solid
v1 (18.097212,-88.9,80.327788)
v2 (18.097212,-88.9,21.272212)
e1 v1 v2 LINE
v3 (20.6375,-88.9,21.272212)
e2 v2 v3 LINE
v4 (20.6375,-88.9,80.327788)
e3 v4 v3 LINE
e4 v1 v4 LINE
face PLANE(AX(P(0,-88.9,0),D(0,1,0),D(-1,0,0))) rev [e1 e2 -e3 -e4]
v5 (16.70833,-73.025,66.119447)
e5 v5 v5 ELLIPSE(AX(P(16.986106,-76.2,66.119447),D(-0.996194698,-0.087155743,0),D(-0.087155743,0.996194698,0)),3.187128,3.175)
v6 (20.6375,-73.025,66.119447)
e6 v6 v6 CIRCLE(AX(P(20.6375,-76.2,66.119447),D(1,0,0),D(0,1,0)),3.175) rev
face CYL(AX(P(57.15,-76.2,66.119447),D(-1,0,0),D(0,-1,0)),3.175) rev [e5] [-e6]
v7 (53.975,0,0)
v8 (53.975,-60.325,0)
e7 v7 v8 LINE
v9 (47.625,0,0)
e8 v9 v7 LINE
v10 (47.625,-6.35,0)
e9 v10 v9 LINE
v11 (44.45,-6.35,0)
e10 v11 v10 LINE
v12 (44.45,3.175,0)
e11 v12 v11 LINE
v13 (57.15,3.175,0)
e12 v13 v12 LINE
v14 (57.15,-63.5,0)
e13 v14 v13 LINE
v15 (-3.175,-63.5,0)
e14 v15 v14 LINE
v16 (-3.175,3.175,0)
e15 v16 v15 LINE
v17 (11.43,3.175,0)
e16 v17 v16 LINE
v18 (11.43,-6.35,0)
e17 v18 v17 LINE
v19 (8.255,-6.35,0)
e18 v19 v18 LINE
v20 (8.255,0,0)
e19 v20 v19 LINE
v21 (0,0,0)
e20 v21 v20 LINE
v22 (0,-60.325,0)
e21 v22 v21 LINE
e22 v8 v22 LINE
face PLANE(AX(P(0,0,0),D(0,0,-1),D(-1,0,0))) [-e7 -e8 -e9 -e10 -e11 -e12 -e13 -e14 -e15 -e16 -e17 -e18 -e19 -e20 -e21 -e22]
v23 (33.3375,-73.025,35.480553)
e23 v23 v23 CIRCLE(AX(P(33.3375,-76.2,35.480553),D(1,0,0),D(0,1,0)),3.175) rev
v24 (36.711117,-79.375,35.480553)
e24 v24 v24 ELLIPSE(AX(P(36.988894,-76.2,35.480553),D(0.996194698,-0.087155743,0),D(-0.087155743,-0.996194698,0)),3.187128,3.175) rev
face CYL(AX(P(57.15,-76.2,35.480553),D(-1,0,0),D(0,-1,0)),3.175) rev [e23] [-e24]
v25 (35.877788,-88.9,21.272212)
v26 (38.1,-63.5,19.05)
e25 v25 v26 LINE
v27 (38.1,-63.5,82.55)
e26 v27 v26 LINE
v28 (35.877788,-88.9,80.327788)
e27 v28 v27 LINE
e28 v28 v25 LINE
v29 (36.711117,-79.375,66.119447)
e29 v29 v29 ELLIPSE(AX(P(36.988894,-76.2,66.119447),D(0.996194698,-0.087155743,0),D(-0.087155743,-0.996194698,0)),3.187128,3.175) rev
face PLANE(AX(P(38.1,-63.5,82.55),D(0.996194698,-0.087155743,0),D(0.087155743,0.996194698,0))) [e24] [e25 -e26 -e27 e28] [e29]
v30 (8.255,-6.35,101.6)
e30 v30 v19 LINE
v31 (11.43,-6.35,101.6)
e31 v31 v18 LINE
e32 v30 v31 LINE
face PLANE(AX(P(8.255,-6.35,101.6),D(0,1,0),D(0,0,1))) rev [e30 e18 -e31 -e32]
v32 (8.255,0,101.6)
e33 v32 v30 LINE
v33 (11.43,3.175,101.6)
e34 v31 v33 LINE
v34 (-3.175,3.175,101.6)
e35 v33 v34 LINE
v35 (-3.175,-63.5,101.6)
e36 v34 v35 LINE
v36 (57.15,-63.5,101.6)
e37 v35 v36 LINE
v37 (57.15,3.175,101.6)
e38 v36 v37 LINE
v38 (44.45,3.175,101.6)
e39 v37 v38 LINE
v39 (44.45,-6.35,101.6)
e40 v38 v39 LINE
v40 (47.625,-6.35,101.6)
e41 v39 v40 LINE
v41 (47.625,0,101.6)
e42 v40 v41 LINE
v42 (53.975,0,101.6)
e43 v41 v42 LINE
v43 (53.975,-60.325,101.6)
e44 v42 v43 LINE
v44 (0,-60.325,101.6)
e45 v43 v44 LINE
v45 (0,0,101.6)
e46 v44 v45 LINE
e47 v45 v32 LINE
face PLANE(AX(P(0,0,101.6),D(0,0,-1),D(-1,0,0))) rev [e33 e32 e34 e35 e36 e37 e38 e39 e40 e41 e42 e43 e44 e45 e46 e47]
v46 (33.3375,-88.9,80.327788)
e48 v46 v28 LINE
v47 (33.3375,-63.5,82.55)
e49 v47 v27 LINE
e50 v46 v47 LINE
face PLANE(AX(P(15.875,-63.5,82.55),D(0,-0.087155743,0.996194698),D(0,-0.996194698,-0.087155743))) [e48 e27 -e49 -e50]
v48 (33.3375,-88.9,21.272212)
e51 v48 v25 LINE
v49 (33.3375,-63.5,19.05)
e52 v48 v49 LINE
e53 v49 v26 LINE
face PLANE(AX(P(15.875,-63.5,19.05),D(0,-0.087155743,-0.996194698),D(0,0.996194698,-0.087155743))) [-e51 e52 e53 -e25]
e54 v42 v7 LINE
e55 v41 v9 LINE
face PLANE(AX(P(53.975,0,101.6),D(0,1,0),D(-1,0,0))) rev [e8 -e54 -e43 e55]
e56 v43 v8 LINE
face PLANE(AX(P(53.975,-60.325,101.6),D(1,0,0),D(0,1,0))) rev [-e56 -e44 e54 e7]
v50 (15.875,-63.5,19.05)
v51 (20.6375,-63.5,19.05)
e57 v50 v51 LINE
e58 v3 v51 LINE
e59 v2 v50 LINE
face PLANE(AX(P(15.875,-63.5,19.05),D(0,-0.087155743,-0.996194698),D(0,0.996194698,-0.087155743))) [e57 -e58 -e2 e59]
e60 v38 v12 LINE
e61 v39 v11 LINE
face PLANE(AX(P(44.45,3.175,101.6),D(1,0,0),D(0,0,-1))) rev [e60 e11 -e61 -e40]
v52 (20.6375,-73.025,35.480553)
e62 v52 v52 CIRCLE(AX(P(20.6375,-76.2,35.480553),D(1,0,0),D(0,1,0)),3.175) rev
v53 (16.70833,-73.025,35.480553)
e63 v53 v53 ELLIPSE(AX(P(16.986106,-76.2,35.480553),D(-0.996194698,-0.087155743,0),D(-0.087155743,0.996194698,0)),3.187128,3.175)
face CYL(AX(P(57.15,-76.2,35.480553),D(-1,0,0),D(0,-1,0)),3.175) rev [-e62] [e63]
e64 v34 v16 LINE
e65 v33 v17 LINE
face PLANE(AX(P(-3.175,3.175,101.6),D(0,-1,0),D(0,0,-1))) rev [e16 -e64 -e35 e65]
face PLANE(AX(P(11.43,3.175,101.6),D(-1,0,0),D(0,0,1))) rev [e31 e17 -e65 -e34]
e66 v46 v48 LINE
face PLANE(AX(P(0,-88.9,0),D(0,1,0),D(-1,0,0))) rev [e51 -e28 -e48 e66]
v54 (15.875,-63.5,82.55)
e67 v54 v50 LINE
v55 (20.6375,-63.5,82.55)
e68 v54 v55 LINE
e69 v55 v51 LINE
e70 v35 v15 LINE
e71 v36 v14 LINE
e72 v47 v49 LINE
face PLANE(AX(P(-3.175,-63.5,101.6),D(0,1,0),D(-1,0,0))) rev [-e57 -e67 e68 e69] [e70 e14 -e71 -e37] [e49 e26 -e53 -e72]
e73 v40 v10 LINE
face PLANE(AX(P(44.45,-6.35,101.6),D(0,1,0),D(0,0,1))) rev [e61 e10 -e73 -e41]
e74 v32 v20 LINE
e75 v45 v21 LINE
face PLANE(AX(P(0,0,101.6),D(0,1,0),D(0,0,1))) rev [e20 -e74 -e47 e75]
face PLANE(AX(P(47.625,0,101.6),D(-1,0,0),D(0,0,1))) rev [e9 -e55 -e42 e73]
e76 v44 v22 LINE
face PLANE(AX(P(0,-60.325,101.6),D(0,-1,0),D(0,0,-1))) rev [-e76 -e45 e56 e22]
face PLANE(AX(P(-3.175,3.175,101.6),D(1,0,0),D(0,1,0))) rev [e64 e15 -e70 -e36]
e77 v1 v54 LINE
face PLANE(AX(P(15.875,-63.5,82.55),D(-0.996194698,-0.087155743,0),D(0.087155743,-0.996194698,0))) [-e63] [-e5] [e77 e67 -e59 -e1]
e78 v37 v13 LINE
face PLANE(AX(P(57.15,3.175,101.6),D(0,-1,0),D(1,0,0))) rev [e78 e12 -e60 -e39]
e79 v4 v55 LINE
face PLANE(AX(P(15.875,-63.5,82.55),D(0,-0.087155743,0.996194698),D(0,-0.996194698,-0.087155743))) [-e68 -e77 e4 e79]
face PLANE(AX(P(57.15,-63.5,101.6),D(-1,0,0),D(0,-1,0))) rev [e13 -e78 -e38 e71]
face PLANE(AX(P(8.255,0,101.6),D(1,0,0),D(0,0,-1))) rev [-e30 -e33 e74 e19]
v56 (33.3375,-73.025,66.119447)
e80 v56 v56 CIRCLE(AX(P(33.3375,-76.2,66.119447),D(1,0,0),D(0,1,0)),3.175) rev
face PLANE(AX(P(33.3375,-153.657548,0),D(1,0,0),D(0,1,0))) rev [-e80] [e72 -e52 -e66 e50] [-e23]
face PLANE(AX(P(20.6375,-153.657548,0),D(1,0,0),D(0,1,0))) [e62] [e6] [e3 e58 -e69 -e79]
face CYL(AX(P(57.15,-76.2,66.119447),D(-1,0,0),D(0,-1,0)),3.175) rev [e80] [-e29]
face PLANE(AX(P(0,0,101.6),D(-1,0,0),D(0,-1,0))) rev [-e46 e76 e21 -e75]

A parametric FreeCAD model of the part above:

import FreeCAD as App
import Part
import Sketcher
Q = App.Units.Quantity


def add_polygon(sketch, points):
    """Adds a closed chain of lines whose ends are joined by coincident constraints."""
    first, n = sketch.GeometryCount, len(points)
    for a, b in zip(points, points[1:] + points[:1]):
        sketch.addGeometry(Part.LineSegment(App.Vector(*a, 0), App.Vector(*b, 0)), False)
    for i in range(n):
        sketch.addConstraint(Sketcher.Constraint("Coincident", first + i, 2, first + (i + 1) % n, 1))

doc = App.newDocument("Part")
params = doc.addObject("Spreadsheet::Sheet", "Params")
for row, (alias, value) in enumerate([
    ("sketch1_width", "0.5 in"),
    ("sketch1_width2", "0.25 in"),
    ("sketch1_width3", "0.325 in"),
    ("sketch1_width4", "0.125 in"),
    ("sketch1_width5", "0.575 in"),
    ("pad1_length", "4 in"),
    ("sketch2_height", "2.5 in"),
    ("sketch2_width", "0.875 in"),
    ("pad2_length", "1 in"),
    ("pad2_taper", "-5 deg"),
    ("sketch3_width", "0.5 in"),
    ("sketch3_height", "2.5 in"),
    ("pocket1_length", "1 in"),
    ("sketch4_diameter", "0.25 in"),
], start=1):
    params.set(f"A{row}", alias)
    params.set(f"B{row}", "=" + value)
    params.setAlias(f"B{row}", alias)

body = doc.addObject("PartDesign::Body", "Body")

# Sketch on XY plane
sketch1 = doc.addObject("Sketcher::SketchObject", "Sketch")
body.addObject(sketch1)
sketch1.AttachmentSupport = (doc.XY_Plane, [""])
sketch1.MapMode = "FlatFace"
add_polygon(sketch1, [(0, -60.3), (0, 0), (8.3, 0), (8.3, -6.3), (11.4, -6.3), (11.4, 3.2), (-3.2, 3.2), (-3.2, -63.5), (57.1, -63.5), (57.1, 3.2), (44.5, 3.2), (44.5, -6.3), (47.6, -6.3), (47.6, 0), (54, 0), (54, -60.3)])  # lines 0-15
sketch1.addConstraint(Sketcher.Constraint("Vertical", 0))
sketch1.addConstraint(Sketcher.Constraint("Horizontal", 1))
sketch1.addConstraint(Sketcher.Constraint("Vertical", 2))
sketch1.addConstraint(Sketcher.Constraint("Horizontal", 3))
sketch1.addConstraint(Sketcher.Constraint("Vertical", 4))
sketch1.addConstraint(Sketcher.Constraint("Horizontal", 5))
sketch1.addConstraint(Sketcher.Constraint("Vertical", 6))
sketch1.addConstraint(Sketcher.Constraint("Horizontal", 7))
sketch1.addConstraint(Sketcher.Constraint("Vertical", 8))
sketch1.addConstraint(Sketcher.Constraint("Horizontal", 9))
sketch1.addConstraint(Sketcher.Constraint("Vertical", 10))
sketch1.addConstraint(Sketcher.Constraint("Horizontal", 11))
sketch1.addConstraint(Sketcher.Constraint("Vertical", 12))
sketch1.addConstraint(Sketcher.Constraint("Horizontal", 13))
sketch1.addConstraint(Sketcher.Constraint("Vertical", 14))
sketch1.addConstraint(Sketcher.Constraint("Horizontal", 15))
sketch1.addConstraint(Sketcher.Constraint("Coincident", 0, 2, -1, 1))
sketch1.addConstraint(Sketcher.Constraint("PointOnObject", 12, 2, -1))
sketch1.addConstraint(Sketcher.Constraint("Horizontal", 5, 2, 8, 2))
sketch1.addConstraint(Sketcher.Constraint("Horizontal", 3, 2, 10, 2))
sketch1.addConstraint(Sketcher.Constraint("Equal", 3, 11))
sketch1.addConstraint(Sketcher.Constraint("Equal", 7, 0))
sketch1.addConstraint(Sketcher.Constraint("Equal", 13, 2))
sketch1.addConstraint(Sketcher.Constraint("DistanceX", 9, 2, 9, 1, Q("0.5 in")))
sketch1.addConstraint(Sketcher.Constraint("DistanceX", 13, 1, 13, 2, Q("0.25 in")))
sketch1.addConstraint(Sketcher.Constraint("DistanceY", 6, 2, -1, 1, Q("2.5 in")))
sketch1.addConstraint(Sketcher.Constraint("DistanceX", 3, 2, 7, 2, Q("1.8 in")))
sketch1.addConstraint(Sketcher.Constraint("DistanceX", 1, 1, 1, 2, Q("0.325 in")))
sketch1.addConstraint(Sketcher.Constraint("DistanceX", 3, 1, 3, 2, Q("0.125 in")))
sketch1.addConstraint(Sketcher.Constraint("DistanceX", 5, 2, 5, 1, Q("0.575 in")))
sketch1.addConstraint(Sketcher.Constraint("DistanceY", 4, 1, 4, 2, Q("0.375 in")))
sketch1.setExpression("Constraints[39]", "Params.sketch1_width")
sketch1.setExpression("Constraints[40]", "Params.sketch1_width2")
sketch1.setExpression("Constraints[43]", "Params.sketch1_width3")
sketch1.setExpression("Constraints[44]", "Params.sketch1_width4")
sketch1.setExpression("Constraints[45]", "Params.sketch1_width5")
pad1 = doc.addObject("PartDesign::Pad", "Pad")
body.addObject(pad1)
pad1.Profile = sketch1
pad1.setExpression("Length", "Params.pad1_length")

# Sketch on XZ plane
sketch2 = doc.addObject("Sketcher::SketchObject", "Sketch001")
body.addObject(sketch2)
sketch2.AttachmentSupport = (doc.XZ_Plane, [""])
sketch2.MapMode = "FlatFace"
sketch2.AttachmentOffset = App.Placement(App.Vector(0, 0, 2.5 * 25.4), App.Rotation())
add_polygon(sketch2, [(38, 19), (38, 83), (16, 83), (16, 19)])  # lines 0-3
sketch2.addConstraint(Sketcher.Constraint("Vertical", 0))
sketch2.addConstraint(Sketcher.Constraint("Horizontal", 1))
sketch2.addConstraint(Sketcher.Constraint("Vertical", 2))
sketch2.addConstraint(Sketcher.Constraint("Horizontal", 3))
sketch2.addConstraint(Sketcher.Constraint("DistanceY", 0, 1, 0, 2, Q("2.5 in")))
sketch2.addConstraint(Sketcher.Constraint("DistanceX", -1, 1, 0, 2, Q("1.5 in")))
sketch2.addConstraint(Sketcher.Constraint("DistanceX", 1, 2, 1, 1, Q("0.875 in")))
sketch2.addConstraint(Sketcher.Constraint("DistanceY", -1, 1, 0, 2, Q("3.25 in")))
sketch2.setExpression("Constraints[8]", "Params.sketch2_height")
sketch2.setExpression("Constraints[10]", "Params.sketch2_width")
pad2 = doc.addObject("PartDesign::Pad", "Pad001")
body.addObject(pad2)
pad2.Profile = sketch2
pad2.setExpression("Length", "Params.pad2_length")
pad2.setExpression("TaperAngle", "Params.pad2_taper")

# Sketch on XZ plane
sketch3 = doc.addObject("Sketcher::SketchObject", "Sketch002")
body.addObject(sketch3)
sketch3.AttachmentSupport = (doc.XZ_Plane, [""])
sketch3.MapMode = "FlatFace"
sketch3.AttachmentOffset = App.Placement(App.Vector(0, 0, 2.5 * 25.4), App.Rotation())
add_polygon(sketch3, [(33, 19), (33, 83), (21, 83), (21, 19)])  # lines 0-3
sketch3.addConstraint(Sketcher.Constraint("Vertical", 0))
sketch3.addConstraint(Sketcher.Constraint("Horizontal", 1))
sketch3.addConstraint(Sketcher.Constraint("Vertical", 2))
sketch3.addConstraint(Sketcher.Constraint("Horizontal", 3))
sketch3.addConstraint(Sketcher.Constraint("DistanceX", 1, 2, 1, 1, Q("0.5 in")))
sketch3.addConstraint(Sketcher.Constraint("DistanceY", 0, 1, 0, 2, Q("2.5 in")))
sketch3.addConstraint(Sketcher.Constraint("DistanceY", -1, 1, 0, 2, Q("3.25 in")))
sketch3.addConstraint(Sketcher.Constraint("DistanceX", -1, 1, 0, 2, Q("1.3125 in")))
sketch3.setExpression("Constraints[8]", "Params.sketch3_width")
sketch3.setExpression("Constraints[9]", "Params.sketch3_height")
pocket1 = doc.addObject("PartDesign::Pocket", "Pocket")
body.addObject(pocket1)
pocket1.Profile = sketch3
pocket1.setExpression("Length", "Params.pocket1_length")
pocket1.Reversed = True

# Sketch on YZ plane
sketch4 = doc.addObject("Sketcher::SketchObject", "Sketch003")
body.addObject(sketch4)
sketch4.AttachmentSupport = (doc.YZ_Plane, [""])
sketch4.MapMode = "FlatFace"
sketch4.AttachmentOffset = App.Placement(App.Vector(0, 0, 0.8125 * 25.4), App.Rotation())
sketch4.addGeometry(Part.Circle(App.Vector(-76.2, 66.1, 0), App.Vector(0, 0, 1), 3.2), False)
sketch4.addGeometry(Part.Circle(App.Vector(-76.2, 35.5, 0), App.Vector(0, 0, 1), 3.2), False)
sketch4.addConstraint(Sketcher.Constraint("Equal", 0, 1))
sketch4.addConstraint(Sketcher.Constraint("Vertical", 0, 3, 1, 3))
sketch4.addConstraint(Sketcher.Constraint("Diameter", 0, Q("0.25 in")))
sketch4.addConstraint(Sketcher.Constraint("DistanceX", 0, 3, -1, 1, Q("3 in")))
sketch4.addConstraint(Sketcher.Constraint("DistanceY", -1, 1, 0, 3, 66.119447))
sketch4.addConstraint(Sketcher.Constraint("DistanceY", -1, 1, 1, 3, 35.480553))
sketch4.setExpression("Constraints[2]", "Params.sketch4_diameter")
pocket2 = doc.addObject("PartDesign::Pocket", "Pocket001")
body.addObject(pocket2)
pocket2.Profile = sketch4
pocket2.Type = "ThroughAll"
pocket2.Midplane = True

doc.recompute()
